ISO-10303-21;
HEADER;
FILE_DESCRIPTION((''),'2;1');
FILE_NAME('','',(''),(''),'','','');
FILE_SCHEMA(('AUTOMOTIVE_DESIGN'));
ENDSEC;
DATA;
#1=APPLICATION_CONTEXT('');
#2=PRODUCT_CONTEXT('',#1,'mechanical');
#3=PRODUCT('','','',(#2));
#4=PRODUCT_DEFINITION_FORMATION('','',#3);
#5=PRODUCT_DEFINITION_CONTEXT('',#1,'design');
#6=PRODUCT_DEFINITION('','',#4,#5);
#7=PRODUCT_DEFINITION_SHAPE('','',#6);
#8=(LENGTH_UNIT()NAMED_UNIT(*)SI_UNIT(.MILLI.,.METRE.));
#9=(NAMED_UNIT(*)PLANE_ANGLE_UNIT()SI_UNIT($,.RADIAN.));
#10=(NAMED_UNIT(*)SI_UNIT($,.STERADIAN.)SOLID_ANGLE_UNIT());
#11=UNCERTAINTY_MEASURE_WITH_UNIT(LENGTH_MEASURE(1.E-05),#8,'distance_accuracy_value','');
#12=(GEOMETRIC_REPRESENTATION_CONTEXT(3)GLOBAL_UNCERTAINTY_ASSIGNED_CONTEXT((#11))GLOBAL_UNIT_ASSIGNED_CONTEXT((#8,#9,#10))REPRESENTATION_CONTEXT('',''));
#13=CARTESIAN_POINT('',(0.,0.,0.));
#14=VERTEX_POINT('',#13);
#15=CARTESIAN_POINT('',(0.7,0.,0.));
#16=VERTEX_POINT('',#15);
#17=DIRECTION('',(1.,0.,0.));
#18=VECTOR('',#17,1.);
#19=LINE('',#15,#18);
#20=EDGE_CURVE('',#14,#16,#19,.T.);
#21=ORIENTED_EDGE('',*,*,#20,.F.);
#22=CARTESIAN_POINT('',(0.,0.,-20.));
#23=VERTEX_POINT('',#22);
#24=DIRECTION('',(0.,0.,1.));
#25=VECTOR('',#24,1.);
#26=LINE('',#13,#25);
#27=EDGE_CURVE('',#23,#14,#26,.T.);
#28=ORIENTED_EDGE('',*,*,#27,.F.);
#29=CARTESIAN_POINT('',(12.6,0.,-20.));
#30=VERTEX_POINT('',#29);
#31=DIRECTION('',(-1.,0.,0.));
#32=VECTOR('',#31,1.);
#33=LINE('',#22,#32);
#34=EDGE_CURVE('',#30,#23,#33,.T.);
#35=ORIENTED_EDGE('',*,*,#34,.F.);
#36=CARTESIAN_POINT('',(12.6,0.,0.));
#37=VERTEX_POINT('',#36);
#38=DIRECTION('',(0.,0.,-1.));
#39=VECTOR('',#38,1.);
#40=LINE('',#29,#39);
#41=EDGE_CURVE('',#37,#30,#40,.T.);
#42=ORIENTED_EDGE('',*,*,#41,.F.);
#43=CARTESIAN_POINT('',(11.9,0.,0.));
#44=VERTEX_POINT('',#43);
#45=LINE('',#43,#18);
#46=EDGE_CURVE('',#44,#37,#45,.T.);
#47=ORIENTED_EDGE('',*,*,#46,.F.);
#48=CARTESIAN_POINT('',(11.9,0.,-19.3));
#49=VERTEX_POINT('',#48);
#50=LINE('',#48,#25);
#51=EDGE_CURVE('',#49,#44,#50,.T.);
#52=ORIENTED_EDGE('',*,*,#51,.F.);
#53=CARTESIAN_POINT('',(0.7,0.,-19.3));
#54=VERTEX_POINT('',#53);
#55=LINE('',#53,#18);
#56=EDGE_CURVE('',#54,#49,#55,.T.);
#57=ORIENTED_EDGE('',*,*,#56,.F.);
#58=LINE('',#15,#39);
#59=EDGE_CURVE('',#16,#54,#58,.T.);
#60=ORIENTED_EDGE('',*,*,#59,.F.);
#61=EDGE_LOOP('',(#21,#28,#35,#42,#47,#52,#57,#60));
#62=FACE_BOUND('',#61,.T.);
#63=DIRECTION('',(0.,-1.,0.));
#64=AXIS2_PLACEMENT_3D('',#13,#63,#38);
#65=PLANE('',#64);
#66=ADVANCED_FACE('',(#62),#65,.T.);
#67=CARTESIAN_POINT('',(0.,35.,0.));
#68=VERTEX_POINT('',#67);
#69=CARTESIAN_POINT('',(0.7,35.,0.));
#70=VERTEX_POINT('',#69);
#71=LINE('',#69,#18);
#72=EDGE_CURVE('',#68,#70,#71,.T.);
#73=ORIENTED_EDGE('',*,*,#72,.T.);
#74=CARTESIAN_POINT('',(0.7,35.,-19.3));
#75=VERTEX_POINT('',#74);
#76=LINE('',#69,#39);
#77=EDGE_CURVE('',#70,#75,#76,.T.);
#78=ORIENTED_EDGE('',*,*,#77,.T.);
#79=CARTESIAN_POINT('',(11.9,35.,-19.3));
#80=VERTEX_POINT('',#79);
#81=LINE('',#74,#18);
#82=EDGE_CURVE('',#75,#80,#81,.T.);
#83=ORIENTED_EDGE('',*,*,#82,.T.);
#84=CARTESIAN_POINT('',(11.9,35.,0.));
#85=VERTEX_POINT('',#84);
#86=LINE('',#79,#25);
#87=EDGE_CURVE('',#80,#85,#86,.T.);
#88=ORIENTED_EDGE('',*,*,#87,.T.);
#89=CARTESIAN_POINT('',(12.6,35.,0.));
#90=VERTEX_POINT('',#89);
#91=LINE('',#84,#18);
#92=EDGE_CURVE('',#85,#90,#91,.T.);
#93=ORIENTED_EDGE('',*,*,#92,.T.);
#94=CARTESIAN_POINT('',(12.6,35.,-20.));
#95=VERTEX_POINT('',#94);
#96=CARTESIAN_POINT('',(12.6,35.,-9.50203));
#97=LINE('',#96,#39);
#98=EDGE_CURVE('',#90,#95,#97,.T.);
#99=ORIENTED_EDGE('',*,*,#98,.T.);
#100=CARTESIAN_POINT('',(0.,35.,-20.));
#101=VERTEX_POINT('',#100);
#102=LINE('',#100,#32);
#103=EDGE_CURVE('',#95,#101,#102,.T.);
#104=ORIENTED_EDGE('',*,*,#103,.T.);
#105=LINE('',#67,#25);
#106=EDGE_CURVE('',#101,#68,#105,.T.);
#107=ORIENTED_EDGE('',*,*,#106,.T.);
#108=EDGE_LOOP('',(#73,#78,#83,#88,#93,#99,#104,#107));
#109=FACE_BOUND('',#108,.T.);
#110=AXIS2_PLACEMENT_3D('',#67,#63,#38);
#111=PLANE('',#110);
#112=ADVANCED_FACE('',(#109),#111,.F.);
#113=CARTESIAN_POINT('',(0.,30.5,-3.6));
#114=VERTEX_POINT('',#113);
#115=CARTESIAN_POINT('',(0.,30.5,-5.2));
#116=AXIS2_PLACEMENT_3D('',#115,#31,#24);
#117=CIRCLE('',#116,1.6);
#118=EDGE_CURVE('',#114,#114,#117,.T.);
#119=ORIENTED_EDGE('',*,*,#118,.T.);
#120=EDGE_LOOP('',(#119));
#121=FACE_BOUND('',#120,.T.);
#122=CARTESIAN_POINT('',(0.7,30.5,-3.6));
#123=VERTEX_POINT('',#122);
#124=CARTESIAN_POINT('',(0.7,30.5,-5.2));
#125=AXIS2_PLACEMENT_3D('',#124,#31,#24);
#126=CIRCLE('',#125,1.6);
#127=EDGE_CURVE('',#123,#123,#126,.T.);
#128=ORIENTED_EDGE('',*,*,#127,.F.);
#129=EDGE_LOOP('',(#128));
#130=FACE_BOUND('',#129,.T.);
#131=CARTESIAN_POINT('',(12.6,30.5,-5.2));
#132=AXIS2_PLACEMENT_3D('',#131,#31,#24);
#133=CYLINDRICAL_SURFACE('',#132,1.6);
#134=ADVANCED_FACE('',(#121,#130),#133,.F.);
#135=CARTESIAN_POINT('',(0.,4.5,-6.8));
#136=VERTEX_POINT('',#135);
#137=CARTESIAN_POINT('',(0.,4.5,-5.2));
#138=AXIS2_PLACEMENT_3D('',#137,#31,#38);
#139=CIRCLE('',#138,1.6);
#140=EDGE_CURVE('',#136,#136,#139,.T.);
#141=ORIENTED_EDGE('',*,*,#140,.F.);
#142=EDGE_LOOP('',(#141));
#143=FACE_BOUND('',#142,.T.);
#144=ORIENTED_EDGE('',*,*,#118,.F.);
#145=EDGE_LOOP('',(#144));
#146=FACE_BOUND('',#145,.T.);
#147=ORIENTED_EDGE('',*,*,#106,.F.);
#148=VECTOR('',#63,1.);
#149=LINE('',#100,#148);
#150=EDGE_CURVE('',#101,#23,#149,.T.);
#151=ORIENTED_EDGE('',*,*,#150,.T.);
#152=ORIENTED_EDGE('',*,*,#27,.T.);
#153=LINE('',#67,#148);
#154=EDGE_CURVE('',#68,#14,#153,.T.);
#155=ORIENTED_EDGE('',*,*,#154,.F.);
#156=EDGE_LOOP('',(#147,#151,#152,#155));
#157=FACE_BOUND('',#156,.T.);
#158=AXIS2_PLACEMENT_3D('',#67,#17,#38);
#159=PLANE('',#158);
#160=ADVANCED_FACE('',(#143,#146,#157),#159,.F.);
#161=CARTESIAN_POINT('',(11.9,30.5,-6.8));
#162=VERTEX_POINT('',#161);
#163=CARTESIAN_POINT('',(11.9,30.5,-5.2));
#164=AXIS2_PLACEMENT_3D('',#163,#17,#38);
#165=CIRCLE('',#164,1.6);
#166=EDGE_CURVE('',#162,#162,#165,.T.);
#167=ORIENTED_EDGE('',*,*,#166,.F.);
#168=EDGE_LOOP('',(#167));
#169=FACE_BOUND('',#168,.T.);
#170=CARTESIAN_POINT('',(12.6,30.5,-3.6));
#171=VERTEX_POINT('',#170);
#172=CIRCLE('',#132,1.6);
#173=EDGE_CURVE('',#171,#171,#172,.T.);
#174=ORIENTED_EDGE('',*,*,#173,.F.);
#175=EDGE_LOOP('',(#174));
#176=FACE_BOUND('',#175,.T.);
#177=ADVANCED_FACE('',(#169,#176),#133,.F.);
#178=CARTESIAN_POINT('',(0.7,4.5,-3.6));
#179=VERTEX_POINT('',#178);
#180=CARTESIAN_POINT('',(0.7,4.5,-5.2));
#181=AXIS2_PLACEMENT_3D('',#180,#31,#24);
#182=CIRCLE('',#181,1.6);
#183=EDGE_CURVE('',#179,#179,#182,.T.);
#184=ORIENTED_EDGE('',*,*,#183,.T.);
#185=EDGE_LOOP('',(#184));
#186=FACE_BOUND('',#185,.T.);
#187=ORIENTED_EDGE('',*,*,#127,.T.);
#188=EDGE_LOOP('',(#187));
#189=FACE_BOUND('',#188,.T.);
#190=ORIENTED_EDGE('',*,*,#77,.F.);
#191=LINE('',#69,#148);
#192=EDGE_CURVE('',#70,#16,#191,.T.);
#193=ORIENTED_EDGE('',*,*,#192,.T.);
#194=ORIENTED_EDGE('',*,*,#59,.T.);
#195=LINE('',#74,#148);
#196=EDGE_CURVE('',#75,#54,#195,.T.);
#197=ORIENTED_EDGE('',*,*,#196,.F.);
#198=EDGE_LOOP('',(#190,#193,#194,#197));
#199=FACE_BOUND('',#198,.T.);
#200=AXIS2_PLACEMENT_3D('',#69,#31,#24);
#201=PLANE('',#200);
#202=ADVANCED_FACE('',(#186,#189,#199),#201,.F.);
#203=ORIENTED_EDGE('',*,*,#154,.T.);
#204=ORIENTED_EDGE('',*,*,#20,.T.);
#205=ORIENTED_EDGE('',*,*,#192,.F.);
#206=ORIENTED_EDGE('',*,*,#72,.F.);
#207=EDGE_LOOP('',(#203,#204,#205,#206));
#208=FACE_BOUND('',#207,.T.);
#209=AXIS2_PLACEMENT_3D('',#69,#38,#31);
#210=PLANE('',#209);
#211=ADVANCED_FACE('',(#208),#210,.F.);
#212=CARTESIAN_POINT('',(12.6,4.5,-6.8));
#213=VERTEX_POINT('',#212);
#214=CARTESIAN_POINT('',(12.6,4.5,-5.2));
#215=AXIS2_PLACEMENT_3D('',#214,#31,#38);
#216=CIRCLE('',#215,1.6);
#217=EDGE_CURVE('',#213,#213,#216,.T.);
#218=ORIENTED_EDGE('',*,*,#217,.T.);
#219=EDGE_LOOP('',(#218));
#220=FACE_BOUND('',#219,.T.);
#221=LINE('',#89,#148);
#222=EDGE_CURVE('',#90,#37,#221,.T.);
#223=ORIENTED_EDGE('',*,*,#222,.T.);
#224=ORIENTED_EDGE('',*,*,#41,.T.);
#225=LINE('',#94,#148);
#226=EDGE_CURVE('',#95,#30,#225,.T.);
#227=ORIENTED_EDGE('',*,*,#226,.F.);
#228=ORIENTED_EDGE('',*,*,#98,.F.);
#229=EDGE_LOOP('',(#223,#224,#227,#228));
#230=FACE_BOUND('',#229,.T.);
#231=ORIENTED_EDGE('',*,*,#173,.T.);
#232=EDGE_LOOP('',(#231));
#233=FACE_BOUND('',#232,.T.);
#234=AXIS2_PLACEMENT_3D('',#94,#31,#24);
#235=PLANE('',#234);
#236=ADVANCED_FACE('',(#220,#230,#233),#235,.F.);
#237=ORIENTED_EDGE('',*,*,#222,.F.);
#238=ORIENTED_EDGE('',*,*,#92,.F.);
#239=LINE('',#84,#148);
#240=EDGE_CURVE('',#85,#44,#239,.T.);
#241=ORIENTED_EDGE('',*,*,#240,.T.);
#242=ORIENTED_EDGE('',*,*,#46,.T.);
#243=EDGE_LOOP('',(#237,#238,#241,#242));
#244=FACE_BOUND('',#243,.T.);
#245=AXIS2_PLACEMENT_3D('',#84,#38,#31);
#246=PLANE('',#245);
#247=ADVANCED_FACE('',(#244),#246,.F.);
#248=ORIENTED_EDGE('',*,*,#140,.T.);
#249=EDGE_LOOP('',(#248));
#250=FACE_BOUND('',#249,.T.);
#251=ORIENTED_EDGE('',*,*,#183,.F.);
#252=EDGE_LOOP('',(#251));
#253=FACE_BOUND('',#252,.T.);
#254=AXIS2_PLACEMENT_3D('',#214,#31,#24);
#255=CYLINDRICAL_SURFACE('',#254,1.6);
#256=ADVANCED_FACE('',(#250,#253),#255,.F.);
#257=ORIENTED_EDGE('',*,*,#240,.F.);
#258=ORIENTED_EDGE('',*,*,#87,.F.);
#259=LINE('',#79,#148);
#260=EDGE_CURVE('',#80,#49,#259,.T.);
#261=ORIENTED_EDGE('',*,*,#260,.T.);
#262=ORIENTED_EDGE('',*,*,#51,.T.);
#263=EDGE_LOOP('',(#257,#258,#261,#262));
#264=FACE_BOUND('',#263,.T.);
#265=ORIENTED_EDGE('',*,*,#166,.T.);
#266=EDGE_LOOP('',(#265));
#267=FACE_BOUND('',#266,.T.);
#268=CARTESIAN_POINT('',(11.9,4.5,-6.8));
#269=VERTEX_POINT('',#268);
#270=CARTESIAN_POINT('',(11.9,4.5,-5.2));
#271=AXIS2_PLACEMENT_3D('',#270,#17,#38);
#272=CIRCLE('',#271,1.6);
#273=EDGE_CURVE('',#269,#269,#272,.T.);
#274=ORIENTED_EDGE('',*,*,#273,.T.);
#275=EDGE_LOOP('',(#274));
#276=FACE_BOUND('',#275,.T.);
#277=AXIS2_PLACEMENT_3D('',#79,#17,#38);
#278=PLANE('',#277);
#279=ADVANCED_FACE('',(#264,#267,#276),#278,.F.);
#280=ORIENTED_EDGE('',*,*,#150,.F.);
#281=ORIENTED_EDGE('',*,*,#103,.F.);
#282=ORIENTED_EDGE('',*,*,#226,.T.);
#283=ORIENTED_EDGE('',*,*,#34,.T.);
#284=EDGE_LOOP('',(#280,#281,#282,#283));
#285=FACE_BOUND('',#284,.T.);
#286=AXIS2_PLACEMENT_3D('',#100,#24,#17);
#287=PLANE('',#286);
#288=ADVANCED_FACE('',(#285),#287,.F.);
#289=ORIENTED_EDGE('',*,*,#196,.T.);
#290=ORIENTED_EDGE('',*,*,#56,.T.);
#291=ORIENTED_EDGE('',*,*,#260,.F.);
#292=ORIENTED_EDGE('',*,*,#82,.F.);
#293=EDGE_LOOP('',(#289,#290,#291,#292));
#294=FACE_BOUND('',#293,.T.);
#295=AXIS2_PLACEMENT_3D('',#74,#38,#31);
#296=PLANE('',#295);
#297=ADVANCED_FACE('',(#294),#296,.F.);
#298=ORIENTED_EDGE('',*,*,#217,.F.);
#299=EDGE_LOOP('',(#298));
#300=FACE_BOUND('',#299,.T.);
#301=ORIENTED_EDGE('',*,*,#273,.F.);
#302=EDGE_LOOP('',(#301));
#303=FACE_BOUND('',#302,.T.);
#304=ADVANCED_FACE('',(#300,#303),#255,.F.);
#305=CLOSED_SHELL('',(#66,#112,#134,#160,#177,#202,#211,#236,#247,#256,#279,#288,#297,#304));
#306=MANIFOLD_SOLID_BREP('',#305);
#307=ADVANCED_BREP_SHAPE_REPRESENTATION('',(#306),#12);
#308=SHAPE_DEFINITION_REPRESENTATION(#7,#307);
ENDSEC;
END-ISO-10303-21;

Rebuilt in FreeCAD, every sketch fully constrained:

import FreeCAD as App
import Part
import Sketcher

V = App.Vector
Q = App.Units.Quantity


def add_polygon(sketch, points):
    """Adds a closed chain of lines whose ends are joined by coincident constraints."""
    first, n = sketch.GeometryCount, len(points)
    for a, b in zip(points, points[1:] + points[:1]):
        sketch.addGeometry(Part.LineSegment(App.Vector(*a, 0), App.Vector(*b, 0)), False)
    for i in range(n):
        sketch.addConstraint(Sketcher.Constraint("Coincident", first + i, 2, first + (i + 1) % n, 1))

doc = App.newDocument("Part")
params = doc.addObject("Spreadsheet::Sheet", "Params")
for row, (alias, value) in enumerate([
    ("sketch1_height", "20 mm"),
    ("sketch1_width", "0.7 mm"),
    ("sketch1_width2", "11.2 mm"),
    ("sketch1_height2", "19.3 mm"),
    ("pad1_length", "35 mm"),
    ("sketch2_diameter", "3.2 mm"),
], start=1):
    params.set(f"A{row}", alias)
    params.set(f"B{row}", "=" + value)
    params.setAlias(f"B{row}", alias)

body = doc.addObject("PartDesign::Body", "Body")

# Sketch on XZ plane
sketch1 = doc.addObject("Sketcher::SketchObject", "Sketch")
body.addObject(sketch1)
sketch1.AttachmentSupport = (doc.XZ_Plane, [""])
sketch1.MapMode = "FlatFace"
add_polygon(sketch1, [(0, -20), (0, 0), (0.7, 0), (0.7, -19.3), (11.9, -19.3), (11.9, 0), (12.6, 0), (12.6, -20)])  # lines 0-7
sketch1.addConstraint([
    Sketcher.Constraint("Vertical", 0),
    Sketcher.Constraint("Horizontal", 1),
    Sketcher.Constraint("Vertical", 2),
    Sketcher.Constraint("Horizontal", 3),
    Sketcher.Constraint("Vertical", 4),
    Sketcher.Constraint("Horizontal", 5),
    Sketcher.Constraint("Vertical", 6),
    Sketcher.Constraint("Horizontal", 7),
    Sketcher.Constraint("Coincident", 0, 2, -1, 1),
    Sketcher.Constraint("PointOnObject", 4, 2, -1),
    Sketcher.Constraint("Equal", 1, 5),
    Sketcher.Constraint("DistanceY", 0, 1, 0, 2, Q("20 mm")),
    Sketcher.Constraint("DistanceX", 1, 1, 1, 2, Q("0.7 mm")),
    Sketcher.Constraint("DistanceX", 3, 1, 3, 2, Q("11.2 mm")),
    Sketcher.Constraint("DistanceY", 2, 2, 2, 1, Q("19.3 mm")),
])
sketch1.setExpression("Constraints[19]", "Params.sketch1_height")
sketch1.setExpression("Constraints[20]", "Params.sketch1_width")
sketch1.setExpression("Constraints[21]", "Params.sketch1_width2")
sketch1.setExpression("Constraints[22]", "Params.sketch1_height2")
pad1 = doc.addObject("PartDesign::Pad", "Pad")
body.addObject(pad1)
pad1.Profile = sketch1
pad1.setExpression("Length", "Params.pad1_length")
pad1.Reversed = True

# Sketch on YZ plane
sketch2 = doc.addObject("Sketcher::SketchObject", "Sketch001")
body.addObject(sketch2)
sketch2.AttachmentSupport = (doc.YZ_Plane, [""])
sketch2.MapMode = "FlatFace"
sketch2.addGeometry([
    Part.Circle(V(30.5, -5.2, 0), V(0, 0, 1), 1.6),
    Part.Circle(V(4.5, -5.2, 0), V(0, 0, 1), 1.6),
], False)
sketch2.addConstraint([
    Sketcher.Constraint("Equal", 0, 1),
    Sketcher.Constraint("Horizontal", 0, 3, 1, 3),
    Sketcher.Constraint("Diameter", 0, Q("3.2 mm")),
    Sketcher.Constraint("DistanceX", 1, 3, 0, 3, Q("26 mm")),
    Sketcher.Constraint("DistanceX", -1, 1, 0, 3, Q("30.5 mm")),
    Sketcher.Constraint("DistanceY", 0, 3, -1, 1, Q("5.2 mm")),
])
sketch2.setExpression("Constraints[2]", "Params.sketch2_diameter")
pocket1 = doc.addObject("PartDesign::Pocket", "Pocket")
body.addObject(pocket1)
pocket1.Profile = sketch2
pocket1.Type = "ThroughAll"
pocket1.Reversed = True

doc.recompute()
